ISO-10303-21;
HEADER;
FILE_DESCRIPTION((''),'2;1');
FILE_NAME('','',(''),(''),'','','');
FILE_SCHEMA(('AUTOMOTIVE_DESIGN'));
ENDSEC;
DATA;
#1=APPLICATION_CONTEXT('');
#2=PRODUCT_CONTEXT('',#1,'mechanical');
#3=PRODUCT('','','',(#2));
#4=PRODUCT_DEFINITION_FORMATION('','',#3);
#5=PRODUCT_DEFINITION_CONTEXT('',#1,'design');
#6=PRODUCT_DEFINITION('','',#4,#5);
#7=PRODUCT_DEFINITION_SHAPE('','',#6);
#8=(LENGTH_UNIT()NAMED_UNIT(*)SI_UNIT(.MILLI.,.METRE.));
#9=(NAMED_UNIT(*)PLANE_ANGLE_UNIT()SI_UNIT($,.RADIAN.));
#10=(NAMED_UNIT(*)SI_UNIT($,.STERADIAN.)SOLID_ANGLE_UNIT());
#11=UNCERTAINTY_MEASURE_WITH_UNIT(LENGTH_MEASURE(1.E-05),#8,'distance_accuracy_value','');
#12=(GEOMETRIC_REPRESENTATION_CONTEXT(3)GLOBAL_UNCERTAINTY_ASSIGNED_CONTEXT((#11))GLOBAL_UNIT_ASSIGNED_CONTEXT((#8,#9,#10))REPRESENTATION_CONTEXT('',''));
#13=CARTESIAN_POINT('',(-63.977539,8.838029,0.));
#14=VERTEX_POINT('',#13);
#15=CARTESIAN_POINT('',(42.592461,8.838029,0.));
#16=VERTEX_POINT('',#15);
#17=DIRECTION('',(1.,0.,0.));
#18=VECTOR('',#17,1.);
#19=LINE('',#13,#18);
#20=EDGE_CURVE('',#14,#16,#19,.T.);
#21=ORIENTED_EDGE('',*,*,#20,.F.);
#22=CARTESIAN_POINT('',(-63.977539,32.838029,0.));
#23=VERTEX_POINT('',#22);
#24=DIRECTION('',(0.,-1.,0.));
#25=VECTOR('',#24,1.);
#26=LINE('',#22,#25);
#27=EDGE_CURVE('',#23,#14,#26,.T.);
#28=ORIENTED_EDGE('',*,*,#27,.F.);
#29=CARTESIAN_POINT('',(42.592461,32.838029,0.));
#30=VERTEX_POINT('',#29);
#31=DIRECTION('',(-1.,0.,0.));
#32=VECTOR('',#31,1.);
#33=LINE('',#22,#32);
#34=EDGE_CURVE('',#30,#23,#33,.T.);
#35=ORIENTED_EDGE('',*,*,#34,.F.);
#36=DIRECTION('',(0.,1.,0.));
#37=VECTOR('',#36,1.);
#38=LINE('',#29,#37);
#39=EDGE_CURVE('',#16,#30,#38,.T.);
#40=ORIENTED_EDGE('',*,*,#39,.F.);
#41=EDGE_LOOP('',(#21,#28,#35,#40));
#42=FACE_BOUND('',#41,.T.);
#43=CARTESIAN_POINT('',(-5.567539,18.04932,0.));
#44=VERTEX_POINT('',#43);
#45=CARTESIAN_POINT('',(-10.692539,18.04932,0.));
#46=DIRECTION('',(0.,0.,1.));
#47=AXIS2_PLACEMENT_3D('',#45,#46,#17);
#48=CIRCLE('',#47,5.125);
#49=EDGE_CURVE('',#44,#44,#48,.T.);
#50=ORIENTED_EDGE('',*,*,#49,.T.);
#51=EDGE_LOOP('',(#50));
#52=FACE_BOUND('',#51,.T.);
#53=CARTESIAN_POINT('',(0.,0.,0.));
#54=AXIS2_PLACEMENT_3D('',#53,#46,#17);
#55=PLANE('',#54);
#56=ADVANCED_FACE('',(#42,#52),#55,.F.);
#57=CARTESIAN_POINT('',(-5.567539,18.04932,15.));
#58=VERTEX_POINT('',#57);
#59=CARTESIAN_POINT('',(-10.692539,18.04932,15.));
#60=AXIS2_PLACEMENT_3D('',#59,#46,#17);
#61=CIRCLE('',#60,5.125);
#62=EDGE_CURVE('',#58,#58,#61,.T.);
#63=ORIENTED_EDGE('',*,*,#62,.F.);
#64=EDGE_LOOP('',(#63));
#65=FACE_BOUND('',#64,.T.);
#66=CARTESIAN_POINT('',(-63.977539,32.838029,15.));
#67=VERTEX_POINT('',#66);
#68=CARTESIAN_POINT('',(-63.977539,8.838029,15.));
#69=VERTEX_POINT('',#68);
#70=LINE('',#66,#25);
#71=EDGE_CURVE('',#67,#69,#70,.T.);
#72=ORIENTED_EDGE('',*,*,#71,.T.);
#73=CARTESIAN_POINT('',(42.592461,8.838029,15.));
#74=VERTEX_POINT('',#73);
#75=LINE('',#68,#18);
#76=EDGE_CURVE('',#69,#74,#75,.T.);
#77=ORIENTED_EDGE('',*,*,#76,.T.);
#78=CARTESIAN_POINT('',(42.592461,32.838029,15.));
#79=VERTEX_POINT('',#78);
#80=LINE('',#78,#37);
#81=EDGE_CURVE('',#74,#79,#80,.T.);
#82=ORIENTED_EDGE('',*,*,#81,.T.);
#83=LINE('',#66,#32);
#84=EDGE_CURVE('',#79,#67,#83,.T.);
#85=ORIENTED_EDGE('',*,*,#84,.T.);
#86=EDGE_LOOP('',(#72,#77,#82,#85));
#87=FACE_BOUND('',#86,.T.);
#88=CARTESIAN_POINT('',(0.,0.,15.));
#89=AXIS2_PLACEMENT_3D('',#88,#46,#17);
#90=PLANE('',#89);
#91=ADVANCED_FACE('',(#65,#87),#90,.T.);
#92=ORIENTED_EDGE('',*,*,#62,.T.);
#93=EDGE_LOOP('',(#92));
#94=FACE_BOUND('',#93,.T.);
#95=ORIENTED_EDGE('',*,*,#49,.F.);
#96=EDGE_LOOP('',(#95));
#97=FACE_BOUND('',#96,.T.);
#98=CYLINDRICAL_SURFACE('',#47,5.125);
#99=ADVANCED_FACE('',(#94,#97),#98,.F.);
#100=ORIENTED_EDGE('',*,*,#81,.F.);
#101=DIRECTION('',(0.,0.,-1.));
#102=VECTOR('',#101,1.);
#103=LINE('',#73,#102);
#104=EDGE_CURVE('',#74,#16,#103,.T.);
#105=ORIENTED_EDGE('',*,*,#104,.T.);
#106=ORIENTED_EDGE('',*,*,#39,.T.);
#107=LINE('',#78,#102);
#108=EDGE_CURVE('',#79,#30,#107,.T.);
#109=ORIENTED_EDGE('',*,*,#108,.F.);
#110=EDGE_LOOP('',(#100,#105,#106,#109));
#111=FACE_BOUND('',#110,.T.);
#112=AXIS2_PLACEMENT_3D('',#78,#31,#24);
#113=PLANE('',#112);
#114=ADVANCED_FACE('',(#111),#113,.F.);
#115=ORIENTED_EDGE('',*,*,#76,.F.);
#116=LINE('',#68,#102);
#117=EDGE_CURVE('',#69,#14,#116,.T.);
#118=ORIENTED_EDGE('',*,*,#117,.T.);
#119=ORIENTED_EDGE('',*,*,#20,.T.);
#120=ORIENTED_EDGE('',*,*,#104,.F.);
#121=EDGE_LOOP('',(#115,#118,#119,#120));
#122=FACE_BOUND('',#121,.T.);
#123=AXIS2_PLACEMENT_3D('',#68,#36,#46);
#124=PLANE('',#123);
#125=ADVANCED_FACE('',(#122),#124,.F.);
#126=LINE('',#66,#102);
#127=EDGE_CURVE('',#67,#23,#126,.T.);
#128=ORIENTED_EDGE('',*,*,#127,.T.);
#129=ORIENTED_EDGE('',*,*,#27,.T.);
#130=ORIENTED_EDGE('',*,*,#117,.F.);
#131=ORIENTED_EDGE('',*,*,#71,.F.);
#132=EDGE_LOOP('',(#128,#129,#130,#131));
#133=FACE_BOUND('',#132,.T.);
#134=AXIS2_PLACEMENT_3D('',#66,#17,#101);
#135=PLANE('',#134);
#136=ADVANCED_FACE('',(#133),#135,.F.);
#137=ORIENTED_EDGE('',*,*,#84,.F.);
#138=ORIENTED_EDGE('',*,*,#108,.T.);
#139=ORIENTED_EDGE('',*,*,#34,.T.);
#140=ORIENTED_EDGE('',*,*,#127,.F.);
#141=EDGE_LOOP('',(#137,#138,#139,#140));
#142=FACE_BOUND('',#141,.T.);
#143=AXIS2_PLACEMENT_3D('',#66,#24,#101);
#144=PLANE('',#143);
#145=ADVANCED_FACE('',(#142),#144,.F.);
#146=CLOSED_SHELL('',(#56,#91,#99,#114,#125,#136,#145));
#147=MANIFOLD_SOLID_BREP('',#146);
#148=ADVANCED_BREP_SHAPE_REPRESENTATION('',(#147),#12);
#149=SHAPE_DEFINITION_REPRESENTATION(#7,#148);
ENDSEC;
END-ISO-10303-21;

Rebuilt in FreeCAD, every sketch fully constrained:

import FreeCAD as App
import Part
import Sketcher
from FreeCAD import Vector

doc = App.newDocument("Part")
body = doc.addObject("PartDesign::Body", "Body")

# Sketch on XY plane
sketch1 = body.newObject("Sketcher::SketchObject", "Sketch")
sketch1.AttachmentSupport = (doc.getObject("XY_Plane"), [""])
sketch1.MapMode = "FlatFace"
sketch1.addGeometry(Part.LineSegment(Vector(-64, 33, 0), Vector(-64, 9, 0)), False)
sketch1.addGeometry(Part.LineSegment(Vector(-64, 9, 0), Vector(43, 9, 0)), False)
sketch1.addGeometry(Part.LineSegment(Vector(43, 9, 0), Vector(43, 33, 0)), False)
sketch1.addGeometry(Part.LineSegment(Vector(43, 33, 0), Vector(-64, 33, 0)), False)
sketch1.addConstraint(Sketcher.Constraint("Coincident", 0, 2, 1, 1))
sketch1.addConstraint(Sketcher.Constraint("Coincident", 1, 2, 2, 1))
sketch1.addConstraint(Sketcher.Constraint("Coincident", 2, 2, 3, 1))
sketch1.addConstraint(Sketcher.Constraint("Coincident", 3, 2, 0, 1))
sketch1.addConstraint(Sketcher.Constraint("Vertical", 0))
sketch1.addConstraint(Sketcher.Constraint("Horizontal", 1))
sketch1.addConstraint(Sketcher.Constraint("Vertical", 2))
sketch1.addConstraint(Sketcher.Constraint("Horizontal", 3))
sketch1.addConstraint(Sketcher.Constraint("DistanceY", 0, 2, 0, 1, 24.0))
sketch1.addConstraint(Sketcher.Constraint("DistanceX", 1, 1, 1, 2, 106.57))
sketch1.addConstraint(Sketcher.Constraint("DistanceX", 0, 2, -1, 1, 63.977539))
sketch1.addConstraint(Sketcher.Constraint("DistanceY", -1, 1, 0, 2, 8.838029))
pad1 = body.newObject("PartDesign::Pad", "Pad")
pad1.Profile = sketch1
pad1.Length = 15

# Sketch on XY plane
sketch2 = body.newObject("Sketcher::SketchObject", "Sketch001")
sketch2.AttachmentSupport = (doc.getObject("XY_Plane"), [""])
sketch2.MapMode = "FlatFace"
sketch2.AttachmentOffset = App.Placement(Vector(0, 0, 15), App.Rotation())
sketch2.addGeometry(Part.Circle(Vector(-11, 18, 0), Vector(0, 0, 1), 5), False)
sketch2.addConstraint(Sketcher.Constraint("Diameter", 0, 10.25))
sketch2.addConstraint(Sketcher.Constraint("DistanceX", 0, 3, -1, 1, 10.692539))
sketch2.addConstraint(Sketcher.Constraint("DistanceY", -1, 1, 0, 3, 18.04932))
pocket1 = body.newObject("PartDesign::Pocket", "Pocket")
pocket1.Profile = sketch2
pocket1.Length = 15

doc.recompute()
